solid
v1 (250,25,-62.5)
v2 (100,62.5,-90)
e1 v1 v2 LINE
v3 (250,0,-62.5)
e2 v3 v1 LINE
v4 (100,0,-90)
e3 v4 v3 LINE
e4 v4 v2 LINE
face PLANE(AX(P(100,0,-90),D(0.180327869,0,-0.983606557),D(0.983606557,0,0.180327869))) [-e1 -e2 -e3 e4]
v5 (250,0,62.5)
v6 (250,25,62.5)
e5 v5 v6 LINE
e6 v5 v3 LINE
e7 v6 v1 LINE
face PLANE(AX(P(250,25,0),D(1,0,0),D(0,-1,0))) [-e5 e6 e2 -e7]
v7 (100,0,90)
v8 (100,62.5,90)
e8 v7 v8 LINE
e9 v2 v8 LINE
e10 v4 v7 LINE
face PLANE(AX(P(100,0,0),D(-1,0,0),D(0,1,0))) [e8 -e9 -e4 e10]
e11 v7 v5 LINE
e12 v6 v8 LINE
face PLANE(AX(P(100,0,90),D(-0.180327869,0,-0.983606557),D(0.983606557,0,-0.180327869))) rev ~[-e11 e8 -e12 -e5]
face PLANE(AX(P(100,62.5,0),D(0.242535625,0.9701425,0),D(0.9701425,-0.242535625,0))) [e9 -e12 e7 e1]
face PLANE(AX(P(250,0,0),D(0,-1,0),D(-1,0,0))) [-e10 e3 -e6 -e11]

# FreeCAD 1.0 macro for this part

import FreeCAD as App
import Part
import Sketcher

V = App.Vector
Q = App.Units.Quantity

doc = App.newDocument("Part")
params = doc.addObject("Spreadsheet::Sheet", "Params")
for row, (alias, value) in enumerate([
    ("sketch1_width", "150 mm"),
    ("sketch1_height", "25 mm"),
    ("sketch1_height2", "62.5 mm"),
    ("pad1_length", "180 mm"),
    ("sketch2_width", "150 mm"),
    ("sketch2_height", "27.5 mm"),
], start=1):
    params.set(f"A{row}", alias)
    params.set(f"B{row}", "=" + value)
    params.setAlias(f"B{row}", alias)

body = doc.addObject("PartDesign::Body", "Body")

# Sketch on XY plane
sketch1 = body.newObject("Sketcher::SketchObject", "Sketch")
sketch1.AttachmentSupport = (doc.getObject("XY_Plane"), [""])
sketch1.MapMode = "FlatFace"
sketch1.addGeometry(Part.LineSegment(V(250, 25, 0), V(100, 62, 0)), False)
sketch1.addGeometry(Part.LineSegment(V(100, 62, 0), V(100, 0, 0)), False)
sketch1.addGeometry(Part.LineSegment(V(100, 0, 0), V(250, 0, 0)), False)
sketch1.addGeometry(Part.LineSegment(V(250, 0, 0), V(250, 25, 0)), False)
sketch1.addConstraint(Sketcher.Constraint("Coincident", 0, 2, 1, 1))
sketch1.addConstraint(Sketcher.Constraint("Coincident", 1, 2, 2, 1))
sketch1.addConstraint(Sketcher.Constraint("Coincident", 2, 2, 3, 1))
sketch1.addConstraint(Sketcher.Constraint("Coincident", 3, 2, 0, 1))
sketch1.addConstraint(Sketcher.Constraint("Vertical", 1))
sketch1.addConstraint(Sketcher.Constraint("Horizontal", 2))
sketch1.addConstraint(Sketcher.Constraint("Vertical", 3))
sketch1.addConstraint(Sketcher.Constraint("PointOnObject", 1, 2, -1))
sketch1.addConstraint(Sketcher.Constraint("DistanceX", 2, 1, 2, 2, Q("150 mm")))
sketch1.addConstraint(Sketcher.Constraint("DistanceY", 3, 1, 3, 2, Q("25 mm")))
sketch1.addConstraint(Sketcher.Constraint("DistanceY", 1, 2, 1, 1, Q("62.5 mm")))
sketch1.addConstraint(Sketcher.Constraint("DistanceX", -1, 1, 0, 2, Q("100 mm")))
sketch1.setExpression("Constraints[8]", "Params.sketch1_width")
sketch1.setExpression("Constraints[9]", "Params.sketch1_height")
sketch1.setExpression("Constraints[10]", "Params.sketch1_height2")
pad1 = body.newObject("PartDesign::Pad", "Pad")
pad1.Profile = sketch1
pad1.setExpression("Length", "Params.pad1_length")
pad1.Midplane = True

# Sketch on XZ plane
sketch2 = body.newObject("Sketcher::SketchObject", "Sketch001")
sketch2.AttachmentSupport = (doc.getObject("XZ_Plane"), [""])
sketch2.MapMode = "FlatFace"
sketch2.addGeometry(Part.LineSegment(V(100, -90, 0), V(250, -90, 0)), False)
sketch2.addGeometry(Part.LineSegment(V(250, -90, 0), V(250, -62, 0)), False)
sketch2.addGeometry(Part.LineSegment(V(250, -62, 0), V(100, -90, 0)), False)
sketch2.addGeometry(Part.LineSegment(V(100, 90, 0), V(250, 62, 0)), False)
sketch2.addGeometry(Part.LineSegment(V(250, 62, 0), V(250, 90, 0)), False)
sketch2.addGeometry(Part.LineSegment(V(250, 90, 0), V(100, 90, 0)), False)
sketch2.addConstraint(Sketcher.Constraint("Coincident", 0, 2, 1, 1))
sketch2.addConstraint(Sketcher.Constraint("Coincident", 1, 2, 2, 1))
sketch2.addConstraint(Sketcher.Constraint("Coincident", 2, 2, 0, 1))
sketch2.addConstraint(Sketcher.Constraint("Coincident", 3, 2, 4, 1))
sketch2.addConstraint(Sketcher.Constraint("Coincident", 4, 2, 5, 1))
sketch2.addConstraint(Sketcher.Constraint("Coincident", 5, 2, 3, 1))
sketch2.addConstraint(Sketcher.Constraint("Horizontal", 0))
sketch2.addConstraint(Sketcher.Constraint("Vertical", 1))
sketch2.addConstraint(Sketcher.Constraint("Vertical", 4))
sketch2.addConstraint(Sketcher.Constraint("Horizontal", 5))
sketch2.addConstraint(Sketcher.Constraint("Symmetric", 1, 2, 3, 2, -1))
sketch2.addConstraint(Sketcher.Constraint("Symmetric", 2, 2, 5, 2, -1))
sketch2.addConstraint(Sketcher.Constraint("DistanceY", 1, 2, -1, 1, Q("62.5 mm")))
sketch2.addConstraint(Sketcher.Constraint("DistanceX", 0, 1, 0, 2, Q("150 mm")))
sketch2.addConstraint(Sketcher.Constraint("DistanceY", 1, 1, 1, 2, Q("27.5 mm")))
sketch2.addConstraint(Sketcher.Constraint("DistanceX", -1, 1, 0, 2, Q("250 mm")))
sketch2.setExpression("Constraints[13]", "Params.sketch2_width")
sketch2.setExpression("Constraints[14]", "Params.sketch2_height")
pocket1 = body.newObject("PartDesign::Pocket", "Pocket")
pocket1.Profile = sketch2
pocket1.Type = "ThroughAll"

doc.recompute()
